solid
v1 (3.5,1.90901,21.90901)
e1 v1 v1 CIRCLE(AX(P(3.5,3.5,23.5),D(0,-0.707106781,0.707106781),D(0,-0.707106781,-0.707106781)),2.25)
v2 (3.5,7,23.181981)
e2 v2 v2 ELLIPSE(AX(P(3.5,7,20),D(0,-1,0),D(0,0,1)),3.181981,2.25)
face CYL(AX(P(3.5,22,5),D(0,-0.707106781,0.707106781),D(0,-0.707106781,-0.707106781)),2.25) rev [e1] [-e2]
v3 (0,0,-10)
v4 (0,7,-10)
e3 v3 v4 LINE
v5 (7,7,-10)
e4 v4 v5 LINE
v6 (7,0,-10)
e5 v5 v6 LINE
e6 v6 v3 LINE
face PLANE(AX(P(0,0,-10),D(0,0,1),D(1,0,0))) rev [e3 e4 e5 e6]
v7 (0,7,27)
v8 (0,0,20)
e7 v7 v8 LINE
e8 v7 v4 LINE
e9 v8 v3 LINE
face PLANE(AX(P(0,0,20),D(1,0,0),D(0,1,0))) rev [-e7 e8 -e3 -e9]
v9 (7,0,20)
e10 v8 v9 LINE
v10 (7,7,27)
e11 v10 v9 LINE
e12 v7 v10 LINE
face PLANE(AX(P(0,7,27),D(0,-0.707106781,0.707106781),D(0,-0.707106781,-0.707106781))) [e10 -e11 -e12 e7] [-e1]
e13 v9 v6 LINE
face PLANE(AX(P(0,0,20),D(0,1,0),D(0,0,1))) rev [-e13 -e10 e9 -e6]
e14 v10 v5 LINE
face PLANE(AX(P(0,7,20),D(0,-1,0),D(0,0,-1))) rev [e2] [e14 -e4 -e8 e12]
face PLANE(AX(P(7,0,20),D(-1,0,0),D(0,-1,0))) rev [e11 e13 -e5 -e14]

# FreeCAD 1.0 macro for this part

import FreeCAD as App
import Part
import Sketcher

V = App.Vector


def add_polygon(sketch, points):
    """Adds a closed chain of lines whose ends are joined by coincident constraints."""
    first, n = sketch.GeometryCount, len(points)
    for a, b in zip(points, points[1:] + points[:1]):
        sketch.addGeometry(Part.LineSegment(App.Vector(*a, 0), App.Vector(*b, 0)), False)
    for i in range(n):
        sketch.addConstraint(Sketcher.Constraint("Coincident", first + i, 2, first + (i + 1) % n, 1))

doc = App.newDocument("Part")
body = doc.addObject("PartDesign::Body", "Body")

# Sketch on XY plane
sketch1 = body.newObject("Sketcher::SketchObject", "Sketch")
sketch1.AttachmentSupport = (doc.getObject("XY_Plane"), [""])
sketch1.MapMode = "FlatFace"
add_polygon(sketch1, [(0, 7), (0, 0), (7, 0), (7, 7)])  # lines 0-3
sketch1.addConstraint(Sketcher.Constraint("Vertical", 0))
sketch1.addConstraint(Sketcher.Constraint("Horizontal", 1))
sketch1.addConstraint(Sketcher.Constraint("Vertical", 2))
sketch1.addConstraint(Sketcher.Constraint("Horizontal", 3))
sketch1.addConstraint(Sketcher.Constraint("Coincident", 0, 2, -1, 1))
sketch1.addConstraint(Sketcher.Constraint("Equal", 3, 0))
sketch1.addConstraint(Sketcher.Constraint("DistanceX", 1, 1, 1, 2, 7.0))
pad1 = body.newObject("PartDesign::Pad", "Pad")
pad1.Profile = sketch1
pad1.Length = 20

# Sketch on YZ plane
sketch2 = body.newObject("Sketcher::SketchObject", "Sketch001")
sketch2.AttachmentSupport = (doc.getObject("YZ_Plane"), [""])
sketch2.MapMode = "FlatFace"
sketch2.AttachmentOffset = App.Placement(V(0, 0, 7), App.Rotation())
add_polygon(sketch2, [(7, 20), (7, 27), (0, 20)])  # lines 0-2
sketch2.addConstraint(Sketcher.Constraint("Vertical", 0))
sketch2.addConstraint(Sketcher.Constraint("Horizontal", 2))
sketch2.addConstraint(Sketcher.Constraint("PointOnObject", 1, 2, -2))
sketch2.addConstraint(Sketcher.Constraint("Equal", 2, 0))
sketch2.addConstraint(Sketcher.Constraint("DistanceX", 2, 1, 2, 2, 7.0))
sketch2.addConstraint(Sketcher.Constraint("DistanceY", -1, 1, 0, 2, 27.0))
pad2 = body.newObject("PartDesign::Pad", "Pad001")
pad2.Profile = sketch2
pad2.Length = 7
pad2.Reversed = True

# Sketch on XY plane
sketch3 = body.newObject("Sketcher::SketchObject", "Sketch002")
sketch3.AttachmentSupport = (doc.getObject("XY_Plane"), [""])
sketch3.MapMode = "FlatFace"
add_polygon(sketch3, [(7, 7), (7, 0), (0, 0), (0, 7)])  # lines 0-3
sketch3.addConstraint(Sketcher.Constraint("Vertical", 0))
sketch3.addConstraint(Sketcher.Constraint("Horizontal", 1))
sketch3.addConstraint(Sketcher.Constraint("Vertical", 2))
sketch3.addConstraint(Sketcher.Constraint("Horizontal", 3))
sketch3.addConstraint(Sketcher.Constraint("Coincident", 1, 2, -1, 1))
sketch3.addConstraint(Sketcher.Constraint("Equal", 3, 0))
sketch3.addConstraint(Sketcher.Constraint("DistanceX", 1, 2, 1, 1, 7.0))
pad3 = body.newObject("PartDesign::Pad", "Pad002")
pad3.Profile = sketch3
pad3.Length = 10
pad3.Reversed = True

# Sketch on an angled plane
sketch4 = body.newObject("Sketcher::SketchObject", "Sketch003")
sketch4.Placement = App.Placement(V(0, -10, 10), App.Rotation(V(1, 0, 0), V(0, 0.707106781, 0.707106781), V(0, -0.707106781, 0.707106781), "ZXY"))
sketch4.addGeometry(Part.Circle(V(3.5, 19.1, 0), V(0, 0, 1), 2.2), False)
sketch4.addConstraint(Sketcher.Constraint("Diameter", 0, 4.5))
sketch4.addConstraint(Sketcher.Constraint("DistanceX", -1, 1, 0, 3, 3.5))
sketch4.addConstraint(Sketcher.Constraint("DistanceY", -1, 1, 0, 3, 19.091883))
pocket1 = body.newObject("PartDesign::Pocket", "Pocket")
pocket1.Profile = sketch4
pocket1.Type = "ThroughAll"

doc.recompute()
